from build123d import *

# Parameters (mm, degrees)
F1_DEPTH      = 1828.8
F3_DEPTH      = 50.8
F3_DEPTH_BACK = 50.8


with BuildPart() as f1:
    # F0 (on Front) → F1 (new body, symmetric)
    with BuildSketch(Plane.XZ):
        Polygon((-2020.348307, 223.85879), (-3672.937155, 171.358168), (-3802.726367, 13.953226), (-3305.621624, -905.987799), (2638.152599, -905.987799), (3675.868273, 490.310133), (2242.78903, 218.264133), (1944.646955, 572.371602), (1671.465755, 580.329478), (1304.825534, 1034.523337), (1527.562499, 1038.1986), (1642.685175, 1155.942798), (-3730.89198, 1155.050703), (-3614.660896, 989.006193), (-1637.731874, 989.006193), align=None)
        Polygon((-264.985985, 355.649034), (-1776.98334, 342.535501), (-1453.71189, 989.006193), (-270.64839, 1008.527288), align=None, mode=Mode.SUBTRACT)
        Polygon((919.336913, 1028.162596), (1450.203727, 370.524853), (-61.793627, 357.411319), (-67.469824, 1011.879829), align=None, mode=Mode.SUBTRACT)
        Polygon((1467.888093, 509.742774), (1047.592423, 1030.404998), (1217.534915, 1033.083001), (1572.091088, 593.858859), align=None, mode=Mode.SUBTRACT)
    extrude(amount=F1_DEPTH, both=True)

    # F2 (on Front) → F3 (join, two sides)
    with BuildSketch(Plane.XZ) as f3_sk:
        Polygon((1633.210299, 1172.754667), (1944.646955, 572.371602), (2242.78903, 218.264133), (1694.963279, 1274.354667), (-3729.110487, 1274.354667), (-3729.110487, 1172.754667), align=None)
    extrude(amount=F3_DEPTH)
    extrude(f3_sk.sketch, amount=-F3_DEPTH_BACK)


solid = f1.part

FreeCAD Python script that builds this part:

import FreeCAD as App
import Part
import Sketcher
Q = App.Units.Quantity


def add_polygon(sketch, points):
    """Adds a closed chain of lines whose ends are joined by coincident constraints."""
    first, n = sketch.GeometryCount, len(points)
    for a, b in zip(points, points[1:] + points[:1]):
        sketch.addGeometry(Part.LineSegment(App.Vector(*a, 0), App.Vector(*b, 0)), False)
    for i in range(n):
        sketch.addConstraint(Sketcher.Constraint("Coincident", first + i, 2, first + (i + 1) % n, 1))

doc = App.newDocument("Part")
body = doc.addObject("PartDesign::Body", "Body")

sketch1 = doc.addObject("Sketcher::SketchObject", "Sketch")
body.addObject(sketch1)
sketch1.AttachmentSupport = (doc.XZ_Plane, [""])
sketch1.MapMode = "FlatFace"
add_polygon(sketch1, [(-2020, 224), (-3673, 171), (-3803, 14), (-3306, -906), (2638, -906), (3676, 490), (2243, 218), (1945, 572), (1671, 580), (1305, 1035), (1528, 1038), (1643, 1156), (-3731, 1155), (-3615, 989), (-1638, 989)])
add_polygon(sketch1, [(-271, 1009), (-265, 356), (-1777, 343), (-1454, 989)])
add_polygon(sketch1, [(-67, 1012), (919, 1028), (1450, 371), (-62, 357)])
add_polygon(sketch1, [(1572, 594), (1468, 510), (1048, 1030), (1218, 1033)])
sketch1.addConstraint([
    Sketcher.Constraint("Horizontal", 3),
    Sketcher.Constraint("Horizontal", 13),
    Sketcher.Constraint("Perpendicular", 15, 16),
    Sketcher.Constraint("Parallel", 14, 17),
    Sketcher.Constraint("Parallel", 9, 18),
    Sketcher.Constraint("Parallel", 18, 19),
    Sketcher.Constraint("Parallel", 8, 20),
    Sketcher.Constraint("Parallel", 16, 21),
    Sketcher.Constraint("Perpendicular", 21, 22),
    Sketcher.Constraint("Perpendicular", 20, 23),
    Sketcher.Constraint("Perpendicular", 23, 24),
    Sketcher.Constraint("Parallel", 24, 26),
    Sketcher.Constraint("Horizontal", 13, 2, 17, 2),
    Sketcher.Constraint("Equal", 16, 21),
    Sketcher.Constraint("DistanceY", 25, 2, 10, 2, Q("4.8369999 in")),
    Sketcher.Constraint("DistanceX", 13, 1, 13, 2, Q("1976.929022 mm")),
    Sketcher.Constraint("DistanceY", 2, 2, -1, 1, Q("905.987799 mm")),
    Sketcher.Constraint("DistanceX", -1, 1, 3, 2, Q("2638.152599 mm")),
    Sketcher.Constraint("DistanceX", -1, 1, 9, 2, Q("1527.562499 mm")),
    Sketcher.Constraint("DistanceY", -1, 1, 9, 2, Q("1038.1986 mm")),
    Sketcher.Constraint("DistanceY", -1, 1, 10, 2, Q("1155.942798 mm")),
    Sketcher.Constraint("DistanceY", -1, 1, 16, 2, Q("342.535501 mm")),
    Sketcher.Constraint("DistanceY", -1, 1, 24, 2, Q("1030.404998 mm")),
    Sketcher.Constraint("DistanceY", 5, 2, 4, 2, Q("272.046 mm")),
    Sketcher.Constraint("DistanceY", 3, 2, 6, 2, Q("1478.359401 mm")),
    Sketcher.Constraint("DistanceX", 7, 2, 6, 2, Q("273.1812 mm")),
    Sketcher.Constraint("DistanceX", 17, 2, 18, 2, Q("1183.0635 mm")),
    Sketcher.Constraint("DistanceX", 19, 2, 25, 2, Q("298.198002 mm")),
    Sketcher.Constraint("Distance", 5, Q("1458.672391 mm")),
    Sketcher.Constraint("Distance", 6, Q("462.904738 mm")),
    Sketcher.Constraint("Distance", 10, Q("164.672179 mm")),
    Sketcher.Constraint("Distance", 11, Q("5373.577229 mm")),
    Sketcher.Constraint("Distance", 15, Q("652.902809 mm")),
    Sketcher.Constraint("Distance", 16, Q("1512.054221 mm")),
    Sketcher.Constraint("Distance", 25, Q("169.963591 mm")),
    Sketcher.Constraint("Distance", 26, Q("564.471369 mm")),
    Sketcher.Constraint("DistanceX", 3, 1, 3, 2, Q("5943.774223 mm")),
    Sketcher.Constraint("DistanceY", -1, 1, 0, 2, Q("171.358168 mm")),
    Sketcher.Constraint("DistanceX", -1, 1, 5, 2, Q("2242.78903 mm")),
    Sketcher.Constraint("DistanceY", -1, 1, 7, 2, Q("580.329478 mm")),
    Sketcher.Constraint("DistanceY", -1, 1, 14, 2, Q("223.85879 mm")),
    Sketcher.Constraint("DistanceX", 16, 2, -1, 1, Q("1776.98334 mm")),
    Sketcher.Constraint("DistanceX", 17, 2, -1, 1, Q("1453.71189 mm")),
    Sketcher.Constraint("DistanceY", -1, 1, 21, 2, Q("357.411319 mm")),
    Sketcher.Constraint("DistanceY", -1, 1, 22, 2, Q("1011.879829 mm")),
    Sketcher.Constraint("DistanceX", -1, 1, 26, 2, Q("1572.091088 mm")),
    Sketcher.Constraint("DistanceY", -1, 1, 26, 2, Q("593.858859 mm")),
    Sketcher.Constraint("DistanceY", 1, 2, 0, 2, Q("157.404942 mm")),
    Sketcher.Constraint("DistanceX", 0, 2, 2, 2, Q("367.315531 mm")),
    Sketcher.Constraint("DistanceY", 3, 2, 4, 2, Q("1396.297932 mm")),
    Sketcher.Constraint("DistanceX", 1, 2, 4, 2, Q("7478.59464 mm")),
    Sketcher.Constraint("DistanceX", 8, 2, 7, 2, Q("366.640221 mm")),
    Sketcher.Constraint("DistanceY", 12, 2, 11, 2, Q("166.04451 mm")),
    Sketcher.Constraint("DistanceX", 0, 2, 12, 2, Q("58.276259 mm")),
])
pad1 = doc.addObject("PartDesign::Pad", "Pad")
body.addObject(pad1)
pad1.Profile = sketch1
pad1.Length = Q("144 in")
pad1.Midplane = True

sketch2 = doc.addObject("Sketcher::SketchObject", "Sketch001")
body.addObject(sketch2)
sketch2.AttachmentSupport = (doc.XZ_Plane, [""])
sketch2.MapMode = "FlatFace"
add_polygon(sketch2, [(1633, 1173), (1945, 572), (2243, 218), (1695, 1274), (-3729, 1274), (-3729, 1173)])
sketch2.addConstraint([
    Sketcher.Constraint("Horizontal", 3),
    Sketcher.Constraint("Vertical", 4),
    Sketcher.Constraint("Horizontal", 5),
    Sketcher.Constraint("Parallel", 0, 2),
    Sketcher.Constraint("DistanceY", 4, 2, 4, 1, Q("4 in")),
    Sketcher.Constraint("DistanceX", -1, 1, 5, 2, Q("1633.210299 mm")),
    Sketcher.Constraint("Distance", 1, Q("462.904738 mm")),
    Sketcher.Constraint("Distance", 2, Q("1189.72277 mm")),
    Sketcher.Constraint("DistanceX", 3, 2, 3, 1, Q("5424.073766 mm")),
    Sketcher.Constraint("DistanceX", 5, 1, 5, 2, Q("5362.320786 mm")),
    Sketcher.Constraint("DistanceX", -1, 1, 1, 2, Q("2242.78903 mm")),
    Sketcher.Constraint("DistanceY", -1, 1, 0, 2, Q("572.371602 mm")),
])
pad2 = doc.addObject("PartDesign::Pad", "Pad001")
body.addObject(pad2)
pad2.Profile = sketch2
pad2.Type = "TwoLengths"
pad2.Length = Q("2 in")
pad2.Length2 = Q("2 in")

doc.recompute()
